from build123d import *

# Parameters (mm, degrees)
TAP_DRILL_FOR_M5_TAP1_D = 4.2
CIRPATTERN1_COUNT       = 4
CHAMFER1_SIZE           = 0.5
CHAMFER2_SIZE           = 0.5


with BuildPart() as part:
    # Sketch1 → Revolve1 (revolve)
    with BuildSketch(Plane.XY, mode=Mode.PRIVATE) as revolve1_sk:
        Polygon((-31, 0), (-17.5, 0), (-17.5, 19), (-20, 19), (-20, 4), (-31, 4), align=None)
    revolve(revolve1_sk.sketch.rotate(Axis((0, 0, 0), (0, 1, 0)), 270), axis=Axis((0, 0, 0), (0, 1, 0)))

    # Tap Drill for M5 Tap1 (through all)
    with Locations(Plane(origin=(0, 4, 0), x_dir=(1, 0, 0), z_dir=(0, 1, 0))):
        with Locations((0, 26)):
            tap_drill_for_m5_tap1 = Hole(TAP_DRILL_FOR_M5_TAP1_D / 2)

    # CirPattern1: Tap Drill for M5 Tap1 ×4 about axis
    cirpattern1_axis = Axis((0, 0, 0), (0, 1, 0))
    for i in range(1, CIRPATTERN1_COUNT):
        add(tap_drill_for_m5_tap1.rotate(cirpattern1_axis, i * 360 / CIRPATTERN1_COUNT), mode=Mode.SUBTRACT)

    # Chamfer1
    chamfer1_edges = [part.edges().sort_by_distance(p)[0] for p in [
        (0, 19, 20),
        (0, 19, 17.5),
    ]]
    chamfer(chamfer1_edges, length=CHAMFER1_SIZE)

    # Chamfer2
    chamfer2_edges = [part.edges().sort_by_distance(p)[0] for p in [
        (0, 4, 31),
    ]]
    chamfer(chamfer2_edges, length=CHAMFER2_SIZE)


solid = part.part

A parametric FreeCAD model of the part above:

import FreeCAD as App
import Part
import Sketcher


def edges_at(feature, points):
    """Names of the edges that pass closest to the given points."""
    edges = feature.Shape.Edges
    near = lambda p: min(range(len(edges)), key=lambda i: edges[i].distToShape(Part.Vertex(*p))[0])
    return sorted({f"Edge{near(p) + 1}" for p in points})


def add_polygon(sketch, points):
    """Adds a closed chain of lines whose ends are joined by coincident constraints."""
    first, n = sketch.GeometryCount, len(points)
    for a, b in zip(points, points[1:] + points[:1]):
        sketch.addGeometry(Part.LineSegment(App.Vector(*a, 0), App.Vector(*b, 0)), False)
    for i in range(n):
        sketch.addConstraint(Sketcher.Constraint("Coincident", first + i, 2, first + (i + 1) % n, 1))

doc = App.newDocument("Part")
body = doc.addObject("PartDesign::Body", "Body")

sketch1 = body.newObject("Sketcher::SketchObject", "Sketch")
sketch1.AttachmentSupport = (doc.getObject("XY_Plane"), [""])
sketch1.MapMode = "FlatFace"
add_polygon(sketch1, [(-31, 0), (-17.5, 0), (-17.5, 19), (-20, 19), (-20, 4), (-31, 4)])
sketch1.addConstraint([
    Sketcher.Constraint("Horizontal", 0),
    Sketcher.Constraint("Vertical", 1),
    Sketcher.Constraint("Horizontal", 2),
    Sketcher.Constraint("Vertical", 3),
    Sketcher.Constraint("Horizontal", 4),
    Sketcher.Constraint("Vertical", 5),
    Sketcher.Constraint("PointOnObject", 0, 2, -1),
    Sketcher.Constraint("DistanceX", 4, 2, 4, 1, 11.0),
    Sketcher.Constraint("DistanceY", 1, 1, 1, 2, 19.0),
    Sketcher.Constraint("DistanceY", 3, 2, 3, 1, 15.0),
    Sketcher.Constraint("DistanceX", 0, 1, 0, 2, 13.5),
    Sketcher.Constraint("DistanceX", 2, 2, -1, 1, 20.0),
])
revolution = body.newObject("PartDesign::Revolution", "Revolution")
revolution.Profile = sketch1
revolution.ReferenceAxis = (sketch1, ["V_Axis"])
revolution.Angle = 360

sketch2 = body.newObject("Sketcher::SketchObject", "Sketch001")
sketch2.AttachmentSupport = (doc.getObject("XZ_Plane"), [""])
sketch2.MapMode = "FlatFace"
sketch2.AttachmentOffset = App.Placement(App.Vector(0, 0, -4), App.Rotation())
sketch2.addGeometry(Part.Circle(App.Vector(0, -26, 0), App.Vector(0, 0, 1), 2.1), False)
sketch2.addConstraint([
    Sketcher.Constraint("PointOnObject", 0, 3, -2),
    Sketcher.Constraint("Diameter", 0, 4.2),
    Sketcher.Constraint("DistanceY", 0, 3, -1, 1, 26.0),
])
doc.recompute()
hole = body.newObject("PartDesign::Hole", "Hole")
hole.Profile = sketch2
hole.ThreadType = "None"
hole.Diameter = 4.2
hole.DepthType = "ThroughAll"
hole.Reversed = True
doc.recompute()

polarpattern = body.newObject("PartDesign::PolarPattern", "PolarPattern")
polarpattern.Originals = [hole]
polarpattern.Axis = (doc.getObject("Y_Axis"), [""])
polarpattern.Angle = 360
polarpattern.Occurrences = 4
body.Tip = polarpattern
doc.recompute()

chamfer = body.newObject("PartDesign::Chamfer", "Chamfer")
chamfer.Base = (polarpattern, edges_at(polarpattern, [(0, 19, 20), (0, 19, 17.5)]))
chamfer.Size = 0.5
doc.recompute()

chamfer2 = body.newObject("PartDesign::Chamfer", "Chamfer001")
chamfer2.Base = (chamfer, edges_at(chamfer, [(0, 4, 31)]))
chamfer2.Size = 0.5

doc.recompute()
